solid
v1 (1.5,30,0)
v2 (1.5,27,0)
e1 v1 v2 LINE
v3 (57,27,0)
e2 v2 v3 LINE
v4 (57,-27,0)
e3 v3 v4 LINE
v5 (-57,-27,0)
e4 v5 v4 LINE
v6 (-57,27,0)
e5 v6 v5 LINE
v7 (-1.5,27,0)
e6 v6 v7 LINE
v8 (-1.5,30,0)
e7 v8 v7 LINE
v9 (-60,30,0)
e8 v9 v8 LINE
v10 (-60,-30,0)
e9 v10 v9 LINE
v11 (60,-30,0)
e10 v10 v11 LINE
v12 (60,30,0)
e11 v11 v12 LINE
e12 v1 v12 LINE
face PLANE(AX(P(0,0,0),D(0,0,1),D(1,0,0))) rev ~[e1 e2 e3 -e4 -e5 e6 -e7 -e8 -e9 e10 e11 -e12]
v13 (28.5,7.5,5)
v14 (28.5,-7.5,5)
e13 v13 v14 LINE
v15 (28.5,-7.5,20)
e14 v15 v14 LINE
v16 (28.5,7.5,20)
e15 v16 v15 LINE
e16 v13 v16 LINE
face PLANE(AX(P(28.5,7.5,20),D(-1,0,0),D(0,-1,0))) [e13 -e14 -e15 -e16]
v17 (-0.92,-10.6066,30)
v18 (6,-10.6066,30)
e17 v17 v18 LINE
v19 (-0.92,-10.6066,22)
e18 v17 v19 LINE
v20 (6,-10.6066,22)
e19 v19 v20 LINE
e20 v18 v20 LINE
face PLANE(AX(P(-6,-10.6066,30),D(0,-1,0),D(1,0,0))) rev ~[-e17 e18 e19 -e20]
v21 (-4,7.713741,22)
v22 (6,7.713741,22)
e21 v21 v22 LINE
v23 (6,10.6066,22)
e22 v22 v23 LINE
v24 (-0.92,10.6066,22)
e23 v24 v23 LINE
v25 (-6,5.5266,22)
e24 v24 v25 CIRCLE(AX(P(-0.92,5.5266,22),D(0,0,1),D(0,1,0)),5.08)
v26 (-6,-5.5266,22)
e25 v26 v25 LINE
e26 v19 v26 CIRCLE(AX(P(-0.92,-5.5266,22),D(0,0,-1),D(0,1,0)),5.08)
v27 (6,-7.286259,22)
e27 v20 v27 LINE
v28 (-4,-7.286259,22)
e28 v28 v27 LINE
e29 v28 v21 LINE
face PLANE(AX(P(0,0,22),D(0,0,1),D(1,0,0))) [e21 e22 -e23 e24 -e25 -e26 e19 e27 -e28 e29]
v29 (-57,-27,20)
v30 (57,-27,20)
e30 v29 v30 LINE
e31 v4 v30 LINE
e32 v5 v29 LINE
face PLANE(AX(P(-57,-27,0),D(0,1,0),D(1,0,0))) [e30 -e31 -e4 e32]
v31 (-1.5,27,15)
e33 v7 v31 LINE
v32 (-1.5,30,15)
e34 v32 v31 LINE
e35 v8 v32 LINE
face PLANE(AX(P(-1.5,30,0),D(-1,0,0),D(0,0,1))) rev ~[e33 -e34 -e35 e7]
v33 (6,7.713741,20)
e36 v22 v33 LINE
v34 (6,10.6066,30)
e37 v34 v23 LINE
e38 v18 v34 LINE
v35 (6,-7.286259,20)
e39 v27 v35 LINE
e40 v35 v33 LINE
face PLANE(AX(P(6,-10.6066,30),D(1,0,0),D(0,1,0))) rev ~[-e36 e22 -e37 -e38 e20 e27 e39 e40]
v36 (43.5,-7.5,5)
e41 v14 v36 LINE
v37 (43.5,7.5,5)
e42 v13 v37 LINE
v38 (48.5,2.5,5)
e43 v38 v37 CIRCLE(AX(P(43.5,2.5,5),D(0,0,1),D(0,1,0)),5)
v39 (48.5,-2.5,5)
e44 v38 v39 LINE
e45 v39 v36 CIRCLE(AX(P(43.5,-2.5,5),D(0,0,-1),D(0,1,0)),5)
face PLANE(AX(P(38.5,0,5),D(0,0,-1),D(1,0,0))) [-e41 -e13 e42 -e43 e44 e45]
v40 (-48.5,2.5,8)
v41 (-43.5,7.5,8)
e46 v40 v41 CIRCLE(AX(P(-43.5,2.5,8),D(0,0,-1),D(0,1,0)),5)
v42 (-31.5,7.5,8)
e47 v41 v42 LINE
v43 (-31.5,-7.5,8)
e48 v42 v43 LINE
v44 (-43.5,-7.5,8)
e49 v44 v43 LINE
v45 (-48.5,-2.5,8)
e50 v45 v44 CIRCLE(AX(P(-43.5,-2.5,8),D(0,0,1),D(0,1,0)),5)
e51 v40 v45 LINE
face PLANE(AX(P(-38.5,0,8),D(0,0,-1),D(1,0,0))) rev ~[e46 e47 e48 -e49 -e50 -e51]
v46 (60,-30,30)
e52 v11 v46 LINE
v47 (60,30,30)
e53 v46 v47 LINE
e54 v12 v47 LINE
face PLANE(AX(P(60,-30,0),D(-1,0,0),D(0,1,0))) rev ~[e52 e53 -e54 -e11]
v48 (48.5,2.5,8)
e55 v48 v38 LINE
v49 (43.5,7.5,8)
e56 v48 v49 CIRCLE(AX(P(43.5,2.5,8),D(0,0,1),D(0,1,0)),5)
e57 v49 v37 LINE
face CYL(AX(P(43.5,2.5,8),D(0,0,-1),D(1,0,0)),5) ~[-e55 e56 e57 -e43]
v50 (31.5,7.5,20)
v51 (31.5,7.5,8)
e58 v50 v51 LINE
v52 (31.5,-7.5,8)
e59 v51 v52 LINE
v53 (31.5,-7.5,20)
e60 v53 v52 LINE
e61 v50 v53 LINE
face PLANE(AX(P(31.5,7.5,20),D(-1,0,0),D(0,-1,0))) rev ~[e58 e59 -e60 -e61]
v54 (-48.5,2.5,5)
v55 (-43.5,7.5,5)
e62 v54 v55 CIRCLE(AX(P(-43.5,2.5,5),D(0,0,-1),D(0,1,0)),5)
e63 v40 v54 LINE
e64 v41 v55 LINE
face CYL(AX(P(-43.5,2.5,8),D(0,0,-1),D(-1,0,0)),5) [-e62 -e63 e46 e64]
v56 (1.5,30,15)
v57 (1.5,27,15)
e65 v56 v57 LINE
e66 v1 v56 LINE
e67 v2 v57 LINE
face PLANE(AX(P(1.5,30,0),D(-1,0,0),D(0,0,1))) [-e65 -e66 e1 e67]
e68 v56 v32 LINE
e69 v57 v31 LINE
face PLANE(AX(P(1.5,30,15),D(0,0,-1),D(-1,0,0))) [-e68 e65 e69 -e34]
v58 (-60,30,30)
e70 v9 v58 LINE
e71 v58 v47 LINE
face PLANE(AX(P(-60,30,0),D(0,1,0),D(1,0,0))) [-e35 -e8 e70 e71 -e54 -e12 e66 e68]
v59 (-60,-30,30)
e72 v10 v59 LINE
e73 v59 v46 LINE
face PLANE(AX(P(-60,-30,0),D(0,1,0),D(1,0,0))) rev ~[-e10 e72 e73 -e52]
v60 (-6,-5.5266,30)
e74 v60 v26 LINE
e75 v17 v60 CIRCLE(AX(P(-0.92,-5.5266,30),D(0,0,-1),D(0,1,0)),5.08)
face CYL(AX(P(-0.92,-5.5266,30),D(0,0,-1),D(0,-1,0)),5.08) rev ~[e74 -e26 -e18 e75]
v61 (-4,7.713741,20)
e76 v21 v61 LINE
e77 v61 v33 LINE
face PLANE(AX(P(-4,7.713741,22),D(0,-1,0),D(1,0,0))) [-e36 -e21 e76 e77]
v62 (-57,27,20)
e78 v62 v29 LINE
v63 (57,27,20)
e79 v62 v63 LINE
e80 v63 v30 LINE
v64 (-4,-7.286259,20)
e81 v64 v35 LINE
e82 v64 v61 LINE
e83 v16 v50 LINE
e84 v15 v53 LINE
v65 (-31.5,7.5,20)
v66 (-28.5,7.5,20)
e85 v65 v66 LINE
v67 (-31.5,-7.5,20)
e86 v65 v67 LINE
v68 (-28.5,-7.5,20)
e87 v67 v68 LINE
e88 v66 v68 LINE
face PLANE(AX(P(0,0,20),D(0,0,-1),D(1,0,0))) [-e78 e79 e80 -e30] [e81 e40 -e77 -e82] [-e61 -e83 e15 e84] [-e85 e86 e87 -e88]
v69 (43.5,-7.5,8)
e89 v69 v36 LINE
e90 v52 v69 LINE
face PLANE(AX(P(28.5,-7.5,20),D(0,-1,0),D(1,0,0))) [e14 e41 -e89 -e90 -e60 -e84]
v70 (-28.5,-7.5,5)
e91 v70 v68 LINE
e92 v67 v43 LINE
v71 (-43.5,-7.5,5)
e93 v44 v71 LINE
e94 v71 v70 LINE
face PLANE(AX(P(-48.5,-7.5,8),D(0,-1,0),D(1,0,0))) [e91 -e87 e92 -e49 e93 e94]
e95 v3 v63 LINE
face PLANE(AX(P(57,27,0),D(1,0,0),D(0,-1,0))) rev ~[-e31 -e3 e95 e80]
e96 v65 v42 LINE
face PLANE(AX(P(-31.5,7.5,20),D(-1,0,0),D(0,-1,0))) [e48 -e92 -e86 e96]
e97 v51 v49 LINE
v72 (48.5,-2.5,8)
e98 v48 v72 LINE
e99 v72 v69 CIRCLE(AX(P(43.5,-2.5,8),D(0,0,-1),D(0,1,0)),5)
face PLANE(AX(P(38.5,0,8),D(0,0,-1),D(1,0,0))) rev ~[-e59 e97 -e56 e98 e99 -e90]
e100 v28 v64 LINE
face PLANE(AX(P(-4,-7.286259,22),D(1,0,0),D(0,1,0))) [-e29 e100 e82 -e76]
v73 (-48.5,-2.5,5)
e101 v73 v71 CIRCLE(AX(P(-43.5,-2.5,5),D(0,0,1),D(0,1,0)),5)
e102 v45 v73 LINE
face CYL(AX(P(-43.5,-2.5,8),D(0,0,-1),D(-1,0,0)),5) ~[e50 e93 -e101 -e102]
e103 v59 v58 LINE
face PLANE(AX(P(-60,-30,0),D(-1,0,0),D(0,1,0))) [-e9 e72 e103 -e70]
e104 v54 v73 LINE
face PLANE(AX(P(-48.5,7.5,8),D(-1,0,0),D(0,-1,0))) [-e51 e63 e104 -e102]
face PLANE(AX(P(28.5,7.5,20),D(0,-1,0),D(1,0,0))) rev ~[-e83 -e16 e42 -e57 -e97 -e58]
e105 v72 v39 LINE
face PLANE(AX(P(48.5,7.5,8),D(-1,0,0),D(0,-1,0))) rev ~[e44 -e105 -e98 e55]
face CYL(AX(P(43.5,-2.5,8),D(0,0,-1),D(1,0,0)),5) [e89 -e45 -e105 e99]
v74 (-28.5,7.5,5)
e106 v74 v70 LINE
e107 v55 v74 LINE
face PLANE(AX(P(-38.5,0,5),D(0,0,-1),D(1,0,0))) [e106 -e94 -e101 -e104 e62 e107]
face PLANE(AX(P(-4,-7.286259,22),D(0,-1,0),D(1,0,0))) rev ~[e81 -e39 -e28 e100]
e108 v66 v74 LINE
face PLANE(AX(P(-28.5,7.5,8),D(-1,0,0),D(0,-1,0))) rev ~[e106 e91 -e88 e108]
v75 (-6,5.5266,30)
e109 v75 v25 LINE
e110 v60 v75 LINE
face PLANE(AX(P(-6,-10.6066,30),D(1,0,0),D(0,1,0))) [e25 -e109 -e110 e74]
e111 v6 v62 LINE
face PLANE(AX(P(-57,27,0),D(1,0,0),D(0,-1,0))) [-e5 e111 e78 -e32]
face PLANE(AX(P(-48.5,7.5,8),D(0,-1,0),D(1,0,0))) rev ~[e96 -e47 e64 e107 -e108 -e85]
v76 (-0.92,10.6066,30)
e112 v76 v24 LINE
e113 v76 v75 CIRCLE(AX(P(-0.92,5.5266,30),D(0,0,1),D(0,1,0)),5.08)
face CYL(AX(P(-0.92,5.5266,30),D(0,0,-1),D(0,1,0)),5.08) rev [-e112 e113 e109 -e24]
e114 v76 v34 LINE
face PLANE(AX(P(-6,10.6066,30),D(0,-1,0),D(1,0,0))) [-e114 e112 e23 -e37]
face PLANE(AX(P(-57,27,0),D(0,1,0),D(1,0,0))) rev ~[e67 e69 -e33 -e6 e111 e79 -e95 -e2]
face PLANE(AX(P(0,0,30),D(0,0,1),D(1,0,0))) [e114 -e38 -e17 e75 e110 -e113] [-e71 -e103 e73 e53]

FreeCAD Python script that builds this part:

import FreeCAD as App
import Part
import Sketcher
from FreeCAD import Vector


def edges_at(feature, points):
    """Names of the edges that pass closest to the given points."""
    edges = feature.Shape.Edges
    near = lambda p: min(range(len(edges)), key=lambda i: edges[i].distToShape(Part.Vertex(*p))[0])
    return sorted({f"Edge{near(p) + 1}" for p in points})


def add_polygon(sketch, points):
    """Adds a closed chain of lines whose ends are joined by coincident constraints."""
    first, n = sketch.GeometryCount, len(points)
    for a, b in zip(points, points[1:] + points[:1]):
        sketch.addGeometry(Part.LineSegment(App.Vector(*a, 0), App.Vector(*b, 0)), False)
    for i in range(n):
        sketch.addConstraint(Sketcher.Constraint("Coincident", first + i, 2, first + (i + 1) % n, 1))

doc = App.newDocument("Part")
body = doc.addObject("PartDesign::Body", "Body")

sketch1 = body.newObject("Sketcher::SketchObject", "Sketch")
sketch1.AttachmentSupport = (doc.getObject("XY_Plane"), [""])
sketch1.MapMode = "FlatFace"
add_polygon(sketch1, [(-60, 30), (-60, -30), (60, -30), (60, 30)])
sketch1.addConstraint(Sketcher.Constraint("Vertical", 0))
sketch1.addConstraint(Sketcher.Constraint("Horizontal", 1))
sketch1.addConstraint(Sketcher.Constraint("Vertical", 2))
sketch1.addConstraint(Sketcher.Constraint("Horizontal", 3))
sketch1.addConstraint(Sketcher.Constraint("Symmetric", 0, 2, 2, 2, -1, 1))
sketch1.addConstraint(Sketcher.Constraint("DistanceX", 1, 1, 1, 2, 120.0))
sketch1.addConstraint(Sketcher.Constraint("DistanceY", 0, 2, 0, 1, 60.0))
pad1 = body.newObject("PartDesign::Pad", "Pad")
pad1.Profile = sketch1
pad1.Length = 30

sketch2 = body.newObject("Sketcher::SketchObject", "Sketch001")
sketch2.AttachmentSupport = (doc.getObject("XY_Plane"), [""])
sketch2.MapMode = "FlatFace"
sketch2.AttachmentOffset = App.Placement(Vector(0, 0, 30), App.Rotation())
add_polygon(sketch2, [(-6, 11), (-6, -11), (6, -11), (6, 11)])
sketch2.addConstraint(Sketcher.Constraint("Vertical", 0))
sketch2.addConstraint(Sketcher.Constraint("Horizontal", 1))
sketch2.addConstraint(Sketcher.Constraint("Vertical", 2))
sketch2.addConstraint(Sketcher.Constraint("Horizontal", 3))
sketch2.addConstraint(Sketcher.Constraint("Symmetric", 0, 2, 2, 2, -1, 1))
sketch2.addConstraint(Sketcher.Constraint("DistanceX", 1, 1, 1, 2, 12.0))
sketch2.addConstraint(Sketcher.Constraint("DistanceY", 0, 2, 0, 1, 21.2132))
pocket1 = body.newObject("PartDesign::Pocket", "Pocket")
pocket1.Profile = sketch2
pocket1.Length = 8

sketch3 = body.newObject("Sketcher::SketchObject", "Sketch002")
sketch3.AttachmentSupport = (doc.getObject("XY_Plane"), [""])
sketch3.MapMode = "FlatFace"
add_polygon(sketch3, [(-57, -27), (-57, 27), (57, 27), (57, -27)])
sketch3.addConstraint(Sketcher.Constraint("Vertical", 0))
sketch3.addConstraint(Sketcher.Constraint("Horizontal", 1))
sketch3.addConstraint(Sketcher.Constraint("Vertical", 2))
sketch3.addConstraint(Sketcher.Constraint("Horizontal", 3))
sketch3.addConstraint(Sketcher.Constraint("Symmetric", 0, 2, 2, 2, -1, 1))
sketch3.addConstraint(Sketcher.Constraint("DistanceX", 1, 1, 1, 2, 114.0))
sketch3.addConstraint(Sketcher.Constraint("DistanceY", 0, 1, 0, 2, 54.0))
pocket2 = body.newObject("PartDesign::Pocket", "Pocket001")
pocket2.Profile = sketch3
pocket2.Length = 20
pocket2.Reversed = True

sketch4 = body.newObject("Sketcher::SketchObject", "Sketch003")
sketch4.AttachmentSupport = (doc.getObject("XY_Plane"), [""])
sketch4.MapMode = "FlatFace"
sketch4.AttachmentOffset = App.Placement(Vector(0, 0, 20), App.Rotation())
add_polygon(sketch4, [(-31.5, -7.5), (-31.5, 7.5), (-28.5, 7.5), (-28.5, -7.5)])
add_polygon(sketch4, [(28.5, -7.5), (28.5, 7.5), (31.5, 7.5), (31.5, -7.5)])
sketch4.addConstraint(Sketcher.Constraint("Vertical", 0))
sketch4.addConstraint(Sketcher.Constraint("Horizontal", 1))
sketch4.addConstraint(Sketcher.Constraint("Vertical", 2))
sketch4.addConstraint(Sketcher.Constraint("Horizontal", 3))
sketch4.addConstraint(Sketcher.Constraint("Vertical", 4))
sketch4.addConstraint(Sketcher.Constraint("Horizontal", 5))
sketch4.addConstraint(Sketcher.Constraint("Vertical", 6))
sketch4.addConstraint(Sketcher.Constraint("Horizontal", 7))
sketch4.addConstraint(Sketcher.Constraint("Symmetric", 2, 2, 4, 2, -1, 1))
sketch4.addConstraint(Sketcher.Constraint("Symmetric", 0, 2, 6, 2, -1, 1))
sketch4.addConstraint(Sketcher.Constraint("Horizontal", 1, 2, 4, 2))
sketch4.addConstraint(Sketcher.Constraint("DistanceX", 1, 1, 1, 2, 3.0))
sketch4.addConstraint(Sketcher.Constraint("DistanceY", 0, 1, 0, 2, 15.0))
sketch4.addConstraint(Sketcher.Constraint("DistanceX", 1, 2, 4, 2, 57.0))
pad2 = body.newObject("PartDesign::Pad", "Pad001")
pad2.Profile = sketch4
pad2.Length = 12
pad2.Reversed = True

sketch5 = body.newObject("Sketcher::SketchObject", "Sketch004")
sketch5.AttachmentSupport = (doc.getObject("XY_Plane"), [""])
sketch5.MapMode = "FlatFace"
sketch5.AttachmentOffset = App.Placement(Vector(0, 0, 8), App.Rotation())
add_polygon(sketch5, [(-48, -8), (-48, 8), (-28, 8), (-28, -8)])
add_polygon(sketch5, [(28, -8), (28, 8), (48, 8), (48, -8)])
sketch5.addConstraint(Sketcher.Constraint("Vertical", 0))
sketch5.addConstraint(Sketcher.Constraint("Horizontal", 1))
sketch5.addConstraint(Sketcher.Constraint("Vertical", 2))
sketch5.addConstraint(Sketcher.Constraint("Horizontal", 3))
sketch5.addConstraint(Sketcher.Constraint("Vertical", 4))
sketch5.addConstraint(Sketcher.Constraint("Horizontal", 5))
sketch5.addConstraint(Sketcher.Constraint("Vertical", 6))
sketch5.addConstraint(Sketcher.Constraint("Horizontal", 7))
sketch5.addConstraint(Sketcher.Constraint("Symmetric", 2, 2, 4, 2, -1, 1))
sketch5.addConstraint(Sketcher.Constraint("Symmetric", 0, 2, 6, 2, -1, 1))
sketch5.addConstraint(Sketcher.Constraint("Horizontal", 1, 2, 4, 2))
sketch5.addConstraint(Sketcher.Constraint("DistanceX", 1, 1, 1, 2, 20.0))
sketch5.addConstraint(Sketcher.Constraint("DistanceY", 0, 1, 0, 2, 15.0))
sketch5.addConstraint(Sketcher.Constraint("DistanceX", 1, 2, 4, 2, 57.0))
pad3 = body.newObject("PartDesign::Pad", "Pad002")
pad3.Profile = sketch5
pad3.Length = 3
pad3.Reversed = True
doc.recompute()

fillet = body.newObject("PartDesign::Fillet", "Fillet")
fillet.Base = (pad3, edges_at(pad3, [
    (-48.5, -7.5, 6.5),
    (-48.5, 7.5, 6.5),
    (48.5, 7.5, 6.5),
    (48.5, -7.5, 6.5),
]))
fillet.Radius = 5
doc.recompute()

fillet2 = body.newObject("PartDesign::Fillet", "Fillet001")
fillet2.Base = (fillet, edges_at(fillet, [(-6, 10.607, 26), (-6, -10.607, 26)]))
fillet2.Radius = 5.08

sketch6 = body.newObject("Sketcher::SketchObject", "Sketch005")
sketch6.AttachmentSupport = (doc.getObject("XZ_Plane"), [""])
sketch6.MapMode = "FlatFace"
sketch6.AttachmentOffset = App.Placement(Vector(0, 0, -30), App.Rotation())
add_polygon(sketch6, [(1.5, 15), (1.5, 0), (-1.5, 0), (-1.5, 15)])
sketch6.addConstraint(Sketcher.Constraint("Vertical", 0))
sketch6.addConstraint(Sketcher.Constraint("Horizontal", 1))
sketch6.addConstraint(Sketcher.Constraint("Vertical", 2))
sketch6.addConstraint(Sketcher.Constraint("Horizontal", 3))
sketch6.addConstraint(Sketcher.Constraint("Symmetric", 0, 2, 1, 2, -1, 1))
sketch6.addConstraint(Sketcher.Constraint("DistanceX", 1, 2, 1, 1, 3.0))
sketch6.addConstraint(Sketcher.Constraint("DistanceY", 0, 2, 0, 1, 15.0))
pocket3 = body.newObject("PartDesign::Pocket", "Pocket002")
pocket3.Profile = sketch6
pocket3.Length = 3
pocket3.Reversed = True

sketch7 = body.newObject("Sketcher::SketchObject", "Sketch006")
sketch7.AttachmentSupport = (doc.getObject("XY_Plane"), [""])
sketch7.MapMode = "FlatFace"
sketch7.AttachmentOffset = App.Placement(Vector(0, 0, 22), App.Rotation())
add_polygon(sketch7, [(-4, 8), (-4, -7), (6, -7), (6, 8)])
sketch7.addConstraint(Sketcher.Constraint("Vertical", 0))
sketch7.addConstraint(Sketcher.Constraint("Horizontal", 1))
sketch7.addConstraint(Sketcher.Constraint("Vertical", 2))
sketch7.addConstraint(Sketcher.Constraint("Horizontal", 3))
sketch7.addConstraint(Sketcher.Constraint("DistanceX", 1, 1, 1, 2, 10.0))
sketch7.addConstraint(Sketcher.Constraint("DistanceY", 0, 2, 0, 1, 15.0))
sketch7.addConstraint(Sketcher.Constraint("DistanceX", 0, 2, -1, 1, 4.0))
sketch7.addConstraint(Sketcher.Constraint("DistanceY", 0, 2, -1, 1, 7.286259))
pocket4 = body.newObject("PartDesign::Pocket", "Pocket003")
pocket4.Profile = sketch7
pocket4.Type = "ThroughAll"

doc.recompute()
